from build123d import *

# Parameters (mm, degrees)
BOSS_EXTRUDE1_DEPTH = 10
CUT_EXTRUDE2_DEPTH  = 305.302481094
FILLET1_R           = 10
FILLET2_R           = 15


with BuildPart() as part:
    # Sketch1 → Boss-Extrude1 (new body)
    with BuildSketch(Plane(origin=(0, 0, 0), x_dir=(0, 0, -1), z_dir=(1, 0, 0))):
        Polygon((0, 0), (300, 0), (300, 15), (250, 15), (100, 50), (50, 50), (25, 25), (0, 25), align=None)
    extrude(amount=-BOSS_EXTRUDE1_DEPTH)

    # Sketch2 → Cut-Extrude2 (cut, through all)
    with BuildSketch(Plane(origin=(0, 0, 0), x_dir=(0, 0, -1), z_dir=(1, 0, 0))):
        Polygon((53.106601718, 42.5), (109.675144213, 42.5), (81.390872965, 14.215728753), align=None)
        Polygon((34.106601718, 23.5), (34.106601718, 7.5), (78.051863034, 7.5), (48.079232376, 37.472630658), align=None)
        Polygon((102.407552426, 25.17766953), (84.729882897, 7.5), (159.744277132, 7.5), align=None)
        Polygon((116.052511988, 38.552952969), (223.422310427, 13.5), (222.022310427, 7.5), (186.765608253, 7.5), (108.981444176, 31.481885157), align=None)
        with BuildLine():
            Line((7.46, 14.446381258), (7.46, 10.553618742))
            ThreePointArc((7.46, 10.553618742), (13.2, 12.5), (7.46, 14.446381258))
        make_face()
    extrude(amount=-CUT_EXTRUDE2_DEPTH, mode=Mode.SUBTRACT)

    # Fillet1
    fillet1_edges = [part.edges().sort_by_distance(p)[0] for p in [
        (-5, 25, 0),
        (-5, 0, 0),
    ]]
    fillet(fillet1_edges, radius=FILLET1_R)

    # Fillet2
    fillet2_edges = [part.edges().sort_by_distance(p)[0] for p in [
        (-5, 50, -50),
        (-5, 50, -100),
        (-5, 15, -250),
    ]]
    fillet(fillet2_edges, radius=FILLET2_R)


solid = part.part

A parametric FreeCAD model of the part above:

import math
import FreeCAD as App
import Part
import Sketcher
from FreeCAD import Vector
Q = App.Units.Quantity


def edges_at(feature, points):
    """Names of the edges that pass closest to the given points."""
    edges = feature.Shape.Edges
    near = lambda p: min(range(len(edges)), key=lambda i: edges[i].distToShape(Part.Vertex(*p))[0])
    return sorted({f"Edge{near(p) + 1}" for p in points})


def add_polygon(sketch, points):
    """Adds a closed chain of lines whose ends are joined by coincident constraints."""
    first, n = sketch.GeometryCount, len(points)
    for a, b in zip(points, points[1:] + points[:1]):
        sketch.addGeometry(Part.LineSegment(App.Vector(*a, 0), App.Vector(*b, 0)), False)
    for i in range(n):
        sketch.addConstraint(Sketcher.Constraint("Coincident", first + i, 2, first + (i + 1) % n, 1))

doc = App.newDocument("Part")
body = doc.addObject("PartDesign::Body", "Body")

sketch1 = body.newObject("Sketcher::SketchObject", "Sketch")
sketch1.AttachmentSupport = (doc.getObject("YZ_Plane"), [""])
sketch1.MapMode = "FlatFace"
add_polygon(sketch1, [(0, 0), (0, -300), (15, -300), (15, -250), (50, -100), (50, -50), (25, -25), (25, 0)])
sketch1.addConstraint(Sketcher.Constraint("Vertical", 0))
sketch1.addConstraint(Sketcher.Constraint("Horizontal", 1))
sketch1.addConstraint(Sketcher.Constraint("Vertical", 2))
sketch1.addConstraint(Sketcher.Constraint("Vertical", 4))
sketch1.addConstraint(Sketcher.Constraint("Vertical", 6))
sketch1.addConstraint(Sketcher.Constraint("Horizontal", 7))
sketch1.addConstraint(Sketcher.Constraint("Coincident", 7, 2, -1, 1))
sketch1.addConstraint(Sketcher.Constraint("Equal", 2, 4))
sketch1.addConstraint(Sketcher.Constraint("Equal", 7, 6))
sketch1.addConstraint(Sketcher.Constraint("DistanceX", 1, 1, 1, 2, Q("15 mm")))
sketch1.addConstraint(Sketcher.Constraint("DistanceX", 7, 2, 7, 1, Q("25 mm")))
sketch1.addConstraint(Sketcher.Constraint("DistanceY", 0, 2, 0, 1, Q("300 mm")))
sketch1.addConstraint(Sketcher.Constraint("DistanceY", 2, 1, 2, 2, Q("50 mm")))
sketch1.addConstraint(Sketcher.Constraint("Angle", 5, Q("135 deg")))
sketch1.addConstraint(Sketcher.Constraint("DistanceX", -1, 1, 3, 2, Q("50 mm")))
pad1 = body.newObject("PartDesign::Pad", "Pad")
pad1.Profile = sketch1
pad1.Length = 10
pad1.Reversed = True

sketch2 = body.newObject("Sketcher::SketchObject", "Sketch001")
sketch2.AttachmentSupport = (doc.getObject("YZ_Plane"), [""])
sketch2.MapMode = "FlatFace"
add_polygon(sketch2, [(42.5, -109.7), (42.5, -53.1), (14.2, -81.4)])
add_polygon(sketch2, [(23.5, -34.1), (7.5, -34.1), (7.5, -78.1), (37.5, -48.1)])
add_polygon(sketch2, [(25.2, -102.4), (7.5, -84.7), (7.5, -159.7)])
add_polygon(sketch2, [(13.5, -223.4), (38.6, -116.1), (31.5, -109), (7.5, -186.8), (7.5, -222)])
sketch2.addGeometry(Part.LineSegment(Vector(14.4, -7.5, 0), Vector(10.6, -7.5, 0)), False)
sketch2.addGeometry(Part.ArcOfCircle(Part.Circle(Vector(12.5, -10, 0), Vector(0, 0, 1), 3.2), math.radians(127), math.radians(413)), False)
sketch2.addConstraint(Sketcher.Constraint("Coincident", 15, 1, 16, 2))
sketch2.addConstraint(Sketcher.Constraint("Coincident", 16, 1, 15, 2))
sketch2.addConstraint(Sketcher.Constraint("Vertical", 0))
sketch2.addConstraint(Sketcher.Constraint("Horizontal", 3))
sketch2.addConstraint(Sketcher.Constraint("Vertical", 4))
sketch2.addConstraint(Sketcher.Constraint("Vertical", 8))
sketch2.addConstraint(Sketcher.Constraint("Vertical", 13))
sketch2.addConstraint(Sketcher.Constraint("Horizontal", 15))
sketch2.addConstraint(Sketcher.Constraint("Perpendicular", 1, 2))
sketch2.addConstraint(Sketcher.Constraint("Perpendicular", 2, 5))
sketch2.addConstraint(Sketcher.Constraint("Perpendicular", 5, 6))
sketch2.addConstraint(Sketcher.Constraint("Parallel", 6, 7))
sketch2.addConstraint(Sketcher.Constraint("Parallel", 7, 11))
sketch2.addConstraint(Sketcher.Constraint("Parallel", 9, 12))
sketch2.addConstraint(Sketcher.Constraint("Perpendicular", 10, 14))
sketch2.addConstraint(Sketcher.Constraint("Vertical", 4, 2, 7, 2))
sketch2.addConstraint(Sketcher.Constraint("Vertical", 8, 2, 12, 2))
sketch2.addConstraint(Sketcher.Constraint("Equal", 1, 2))
sketch2.addConstraint(Sketcher.Constraint("Radius", 16, Q("3.2 mm")))
sketch2.addConstraint(Sketcher.Constraint("DistanceX", 3, 2, 3, 1, Q("16 mm")))
sketch2.addConstraint(Sketcher.Constraint("Distance", 1, Q("40 mm")))
sketch2.addConstraint(Sketcher.Constraint("Distance", 7, Q("25 mm")))
sketch2.addConstraint(Sketcher.Constraint("Distance", 9, Q("60 mm")))
sketch2.addConstraint(Sketcher.Constraint("Distance", 11, Q("10 mm")))
sketch2.addConstraint(Sketcher.Constraint("DistanceY", 16, 3, -1, 1, Q("10 mm")))
sketch2.addConstraint(Sketcher.Constraint("DistanceX", 16, 3, 0, 2, Q("30 mm")))
sketch2.addConstraint(Sketcher.Constraint("DistanceX", 3, 2, 16, 3, Q("5 mm")))
sketch2.addConstraint(Sketcher.Constraint("DistanceY", 0, 2, 3, 2, Q("19 mm")))
sketch2.addConstraint(Sketcher.Constraint("DistanceX", 13, 2, 14, 2, Q("6 mm")))
sketch2.addConstraint(Sketcher.Constraint("DistanceX", -1, 1, 16, 3, Q("12.5 mm")))
sketch2.addConstraint(Sketcher.Constraint("DistanceY", 14, 2, 13, 2, Q("1.4 mm")))
sketch2.addConstraint(Sketcher.Constraint("DistanceY", 15, 1, -1, 1, Q("7.46 mm")))
sketch2.addConstraint(Sketcher.Constraint("Distance", 5, Q("42.387701 mm")))
sketch2.addConstraint(Sketcher.Constraint("DistanceY", 0, 2, -1, 1, Q("53.106602 mm")))
sketch2.addConstraint(Sketcher.Constraint("DistanceY", 2, 2, 11, 2, Q("0.6937 mm")))
sketch2.addConstraint(Sketcher.Constraint("DistanceY", 13, 2, 10, 2, Q("105.969798 mm")))
sketch2.addConstraint(Sketcher.Constraint("DistanceY", 7, 2, 4, 2, Q("6.67802 mm")))
pocket1 = body.newObject("PartDesign::Pocket", "Pocket")
pocket1.Profile = sketch2
pocket1.Type = "ThroughAll"
doc.recompute()

fillet = body.newObject("PartDesign::Fillet", "Fillet")
fillet.Base = (pocket1, edges_at(pocket1, [(-5, 25, 0), (-5, 0, 0)]))
fillet.Radius = 10
doc.recompute()

fillet2 = body.newObject("PartDesign::Fillet", "Fillet001")
fillet2.Base = (fillet, edges_at(fillet, [(-5, 50, -50), (-5, 50, -100), (-5, 15, -250)]))
fillet2.Radius = 15

doc.recompute()
